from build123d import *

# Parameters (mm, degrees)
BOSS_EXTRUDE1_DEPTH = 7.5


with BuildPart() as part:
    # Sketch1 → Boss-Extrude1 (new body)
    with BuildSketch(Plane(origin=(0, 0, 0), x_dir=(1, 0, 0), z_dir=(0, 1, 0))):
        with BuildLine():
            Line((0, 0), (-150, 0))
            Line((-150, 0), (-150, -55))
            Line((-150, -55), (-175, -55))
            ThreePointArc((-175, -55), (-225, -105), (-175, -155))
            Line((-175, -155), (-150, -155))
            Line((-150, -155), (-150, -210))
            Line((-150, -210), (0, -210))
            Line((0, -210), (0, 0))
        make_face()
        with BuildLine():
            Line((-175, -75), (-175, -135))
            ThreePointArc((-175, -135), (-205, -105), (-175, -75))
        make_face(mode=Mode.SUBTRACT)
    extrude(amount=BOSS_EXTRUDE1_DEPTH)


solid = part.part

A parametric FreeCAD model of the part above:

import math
import FreeCAD as App
import Part
import Sketcher

V = App.Vector

doc = App.newDocument("Part")
body = doc.addObject("PartDesign::Body", "Body")

# Sketch on XZ plane
sketch1 = body.newObject("Sketcher::SketchObject", "Sketch")
sketch1.AttachmentSupport = (doc.getObject("XZ_Plane"), [""])
sketch1.MapMode = "FlatFace"
sketch1.addGeometry([
    Part.LineSegment(V(0, 0, 0), V(-150, 0, 0)),  # 0
    Part.LineSegment(V(-150, 0, 0), V(-150, 55, 0)),  # 1
    Part.LineSegment(V(-150, 55, 0), V(-175, 55, 0)),  # 2
    Part.ArcOfCircle(Part.Circle(V(-175, 105, 0), V(0, 0, 1), 50), math.radians(90), math.radians(270)),  # 3
    Part.LineSegment(V(-175, 155, 0), V(-150, 155, 0)),  # 4
    Part.LineSegment(V(-150, 155, 0), V(-150, 210, 0)),  # 5
    Part.LineSegment(V(-150, 210, 0), V(0, 210, 0)),  # 6
    Part.LineSegment(V(0, 210, 0), V(0, 0, 0)),  # 7
    Part.ArcOfCircle(Part.Circle(V(-175, 105, 0), V(0, 0, 1), 30), math.radians(90), math.radians(270)),  # 8
    Part.LineSegment(V(-175, 75, 0), V(-175, 135, 0)),  # 9
], False)
sketch1.addConstraint([
    Sketcher.Constraint("Coincident", 0, 2, 1, 1),
    Sketcher.Constraint("Coincident", 1, 2, 2, 1),
    Sketcher.Constraint("Tangent", 2, 2, 3, 2),
    Sketcher.Constraint("Tangent", 3, 1, 4, 1),
    Sketcher.Constraint("Coincident", 4, 2, 5, 1),
    Sketcher.Constraint("Coincident", 5, 2, 6, 1),
    Sketcher.Constraint("Coincident", 6, 2, 7, 1),
    Sketcher.Constraint("Coincident", 7, 2, 0, 1),
    Sketcher.Constraint("Coincident", 8, 1, 9, 2),
    Sketcher.Constraint("Coincident", 9, 1, 8, 2),
    Sketcher.Constraint("Horizontal", 0),
    Sketcher.Constraint("Vertical", 1),
    Sketcher.Constraint("Horizontal", 2),
    Sketcher.Constraint("Horizontal", 4),
    Sketcher.Constraint("Vertical", 5),
    Sketcher.Constraint("Horizontal", 6),
    Sketcher.Constraint("Vertical", 7),
    Sketcher.Constraint("Vertical", 9),
    Sketcher.Constraint("Coincident", 7, 2, -1, 1),
    Sketcher.Constraint("Coincident", 8, 3, 3, 3),
    Sketcher.Constraint("Vertical", 1, 2, 4, 2),
    Sketcher.Constraint("Vertical", 3, 1, 8, 1),
    Sketcher.Constraint("Equal", 1, 5),
    Sketcher.Constraint("Radius", 3, 50.0),
    Sketcher.Constraint("Radius", 8, 30.0),
    Sketcher.Constraint("DistanceX", 0, 2, 0, 1, 150.0),
    Sketcher.Constraint("DistanceX", 2, 2, 2, 1, 25.0),
    Sketcher.Constraint("DistanceY", 1, 1, 1, 2, 55.0),
])
pad1 = body.newObject("PartDesign::Pad", "Pad")
pad1.Profile = sketch1
pad1.Length = 7.5
pad1.Reversed = True

doc.recompute()
